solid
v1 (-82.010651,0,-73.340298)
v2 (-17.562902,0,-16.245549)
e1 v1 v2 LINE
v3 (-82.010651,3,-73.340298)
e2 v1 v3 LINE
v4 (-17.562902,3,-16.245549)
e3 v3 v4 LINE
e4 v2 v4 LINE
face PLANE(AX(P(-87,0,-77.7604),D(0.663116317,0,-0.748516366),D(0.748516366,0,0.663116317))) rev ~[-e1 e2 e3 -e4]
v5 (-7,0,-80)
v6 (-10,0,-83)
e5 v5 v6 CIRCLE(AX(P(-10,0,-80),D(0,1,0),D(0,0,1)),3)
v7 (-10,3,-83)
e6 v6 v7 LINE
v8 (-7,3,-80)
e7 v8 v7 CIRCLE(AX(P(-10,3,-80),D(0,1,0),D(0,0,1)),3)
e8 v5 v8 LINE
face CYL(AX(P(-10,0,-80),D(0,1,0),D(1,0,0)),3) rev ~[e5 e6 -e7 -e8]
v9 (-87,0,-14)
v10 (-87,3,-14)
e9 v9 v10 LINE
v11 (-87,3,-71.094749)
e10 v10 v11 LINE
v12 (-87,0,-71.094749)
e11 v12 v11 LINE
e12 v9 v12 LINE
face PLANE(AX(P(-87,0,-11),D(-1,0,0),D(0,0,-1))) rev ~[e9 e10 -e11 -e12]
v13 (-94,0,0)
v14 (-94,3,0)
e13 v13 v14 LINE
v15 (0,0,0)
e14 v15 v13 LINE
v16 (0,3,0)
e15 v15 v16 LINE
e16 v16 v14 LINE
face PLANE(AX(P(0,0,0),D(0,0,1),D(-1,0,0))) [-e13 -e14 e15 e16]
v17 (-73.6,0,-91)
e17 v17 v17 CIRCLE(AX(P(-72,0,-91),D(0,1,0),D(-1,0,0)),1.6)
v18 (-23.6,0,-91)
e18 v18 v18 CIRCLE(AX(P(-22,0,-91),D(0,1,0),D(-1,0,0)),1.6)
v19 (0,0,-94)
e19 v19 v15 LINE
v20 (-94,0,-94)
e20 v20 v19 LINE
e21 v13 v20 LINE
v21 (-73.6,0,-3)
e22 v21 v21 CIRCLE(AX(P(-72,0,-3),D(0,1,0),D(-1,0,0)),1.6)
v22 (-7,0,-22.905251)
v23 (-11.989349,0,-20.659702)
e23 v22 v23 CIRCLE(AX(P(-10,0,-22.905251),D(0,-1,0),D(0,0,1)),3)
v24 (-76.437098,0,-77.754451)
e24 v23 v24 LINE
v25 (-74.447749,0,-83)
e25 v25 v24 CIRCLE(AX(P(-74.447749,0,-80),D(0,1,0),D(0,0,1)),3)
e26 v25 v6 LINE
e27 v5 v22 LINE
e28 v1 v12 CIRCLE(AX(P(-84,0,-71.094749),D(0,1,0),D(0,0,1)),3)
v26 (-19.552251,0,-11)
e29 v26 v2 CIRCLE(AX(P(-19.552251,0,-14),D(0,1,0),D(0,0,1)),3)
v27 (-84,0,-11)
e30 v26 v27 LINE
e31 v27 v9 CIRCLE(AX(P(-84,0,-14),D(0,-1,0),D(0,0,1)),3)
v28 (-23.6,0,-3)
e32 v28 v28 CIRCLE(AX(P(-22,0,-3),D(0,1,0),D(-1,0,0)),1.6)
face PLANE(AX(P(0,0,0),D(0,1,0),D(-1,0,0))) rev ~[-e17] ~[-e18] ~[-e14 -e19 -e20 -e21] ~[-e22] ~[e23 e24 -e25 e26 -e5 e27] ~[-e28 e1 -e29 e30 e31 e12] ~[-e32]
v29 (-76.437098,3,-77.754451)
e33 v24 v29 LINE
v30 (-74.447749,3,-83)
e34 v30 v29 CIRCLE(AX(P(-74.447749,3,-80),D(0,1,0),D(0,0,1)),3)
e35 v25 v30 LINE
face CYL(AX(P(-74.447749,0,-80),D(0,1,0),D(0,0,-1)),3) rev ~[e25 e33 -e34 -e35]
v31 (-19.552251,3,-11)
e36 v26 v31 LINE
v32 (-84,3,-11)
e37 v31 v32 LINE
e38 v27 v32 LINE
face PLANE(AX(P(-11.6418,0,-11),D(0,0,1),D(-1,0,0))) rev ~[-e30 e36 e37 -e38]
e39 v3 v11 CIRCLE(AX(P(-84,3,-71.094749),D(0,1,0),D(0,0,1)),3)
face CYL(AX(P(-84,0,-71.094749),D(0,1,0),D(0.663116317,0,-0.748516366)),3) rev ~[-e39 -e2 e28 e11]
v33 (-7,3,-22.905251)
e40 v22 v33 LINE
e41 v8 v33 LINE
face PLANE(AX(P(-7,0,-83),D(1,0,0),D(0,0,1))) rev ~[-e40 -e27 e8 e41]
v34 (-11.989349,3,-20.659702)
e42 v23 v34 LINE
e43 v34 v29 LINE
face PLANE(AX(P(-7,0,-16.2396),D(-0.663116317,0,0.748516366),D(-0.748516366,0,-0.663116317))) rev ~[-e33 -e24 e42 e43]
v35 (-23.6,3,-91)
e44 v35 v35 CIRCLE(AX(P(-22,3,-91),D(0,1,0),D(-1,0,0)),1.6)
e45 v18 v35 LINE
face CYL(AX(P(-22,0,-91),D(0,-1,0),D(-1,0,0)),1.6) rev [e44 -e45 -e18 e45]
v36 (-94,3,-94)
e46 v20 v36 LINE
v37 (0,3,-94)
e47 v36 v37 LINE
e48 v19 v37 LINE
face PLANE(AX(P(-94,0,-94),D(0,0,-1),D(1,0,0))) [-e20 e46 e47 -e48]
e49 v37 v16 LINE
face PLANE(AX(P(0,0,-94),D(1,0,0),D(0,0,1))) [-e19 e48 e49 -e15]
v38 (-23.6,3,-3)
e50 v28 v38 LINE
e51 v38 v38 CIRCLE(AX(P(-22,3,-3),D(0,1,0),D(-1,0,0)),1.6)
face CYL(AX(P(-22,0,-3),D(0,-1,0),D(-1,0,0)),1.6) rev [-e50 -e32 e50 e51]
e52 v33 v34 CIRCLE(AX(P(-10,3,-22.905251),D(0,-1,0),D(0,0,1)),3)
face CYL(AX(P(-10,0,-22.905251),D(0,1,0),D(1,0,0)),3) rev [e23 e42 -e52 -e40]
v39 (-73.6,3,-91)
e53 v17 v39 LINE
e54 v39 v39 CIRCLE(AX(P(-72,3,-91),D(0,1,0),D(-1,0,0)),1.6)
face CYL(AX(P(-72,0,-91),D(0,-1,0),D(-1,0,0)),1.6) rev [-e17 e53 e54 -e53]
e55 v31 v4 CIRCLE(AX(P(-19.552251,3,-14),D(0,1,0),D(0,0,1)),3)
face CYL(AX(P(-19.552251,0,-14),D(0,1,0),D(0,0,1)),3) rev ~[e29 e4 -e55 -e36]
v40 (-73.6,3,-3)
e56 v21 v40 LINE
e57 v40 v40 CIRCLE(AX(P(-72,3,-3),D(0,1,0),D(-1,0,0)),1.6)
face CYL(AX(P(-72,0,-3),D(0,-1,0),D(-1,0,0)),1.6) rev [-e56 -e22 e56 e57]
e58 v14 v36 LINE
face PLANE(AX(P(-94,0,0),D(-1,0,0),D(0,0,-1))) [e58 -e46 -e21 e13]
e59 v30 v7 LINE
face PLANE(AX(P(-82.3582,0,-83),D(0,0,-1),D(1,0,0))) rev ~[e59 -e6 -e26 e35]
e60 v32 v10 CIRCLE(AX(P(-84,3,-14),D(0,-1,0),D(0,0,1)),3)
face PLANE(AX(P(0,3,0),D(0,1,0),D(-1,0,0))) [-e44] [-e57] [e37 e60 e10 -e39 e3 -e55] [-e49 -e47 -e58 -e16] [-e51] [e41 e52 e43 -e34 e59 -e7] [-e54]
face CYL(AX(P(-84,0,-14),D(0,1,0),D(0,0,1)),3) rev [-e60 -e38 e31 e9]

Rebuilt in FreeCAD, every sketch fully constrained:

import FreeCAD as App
import Part
import Sketcher

V = App.Vector


def edges_at(feature, points):
    """Names of the edges that pass closest to the given points."""
    edges = feature.Shape.Edges
    near = lambda p: min(range(len(edges)), key=lambda i: edges[i].distToShape(Part.Vertex(*p))[0])
    return sorted({f"Edge{near(p) + 1}" for p in points})

doc = App.newDocument("Part")
body = doc.addObject("PartDesign::Body", "Body")

# Sketch on XZ plane
sketch1 = doc.addObject("Sketcher::SketchObject", "Sketch")
body.addObject(sketch1)
sketch1.AttachmentSupport = (doc.XZ_Plane, [""])
sketch1.MapMode = "FlatFace"
sketch1.addGeometry([
    Part.LineSegment(V(-94, 0, 0), V(0, 0, 0)),  # 0
    Part.LineSegment(V(0, 0, 0), V(0, -94, 0)),  # 1
    Part.LineSegment(V(0, -94, 0), V(-94, -94, 0)),  # 2
    Part.LineSegment(V(-94, -94, 0), V(-94, 0, 0)),  # 3
    Part.Circle(V(-22, -91, 0), V(0, 0, 1), 1.6),  # 4
    Part.LineSegment(V(-7, -83, 0), V(-7, -16.2, 0)),  # 5
    Part.LineSegment(V(-7, -16.2, 0), V(-82.4, -83, 0)),  # 6
    Part.LineSegment(V(-82.4, -83, 0), V(-7, -83, 0)),  # 7
    Part.Circle(V(-72, -91, 0), V(0, 0, 1), 1.6),  # 8
    Part.Circle(V(-22, -3, 0), V(0, 0, 1), 1.6),  # 9
    Part.LineSegment(V(-11.6, -11, 0), V(-87, -11, 0)),  # 10
    Part.LineSegment(V(-87, -11, 0), V(-87, -77.8, 0)),  # 11
    Part.LineSegment(V(-87, -77.8, 0), V(-11.6, -11, 0)),  # 12
    Part.Circle(V(-72, -3, 0), V(0, 0, 1), 1.6),  # 13
], False)
sketch1.addConstraint([
    Sketcher.Constraint("Coincident", 0, 2, 1, 1),
    Sketcher.Constraint("Coincident", 1, 2, 2, 1),
    Sketcher.Constraint("Coincident", 2, 2, 3, 1),
    Sketcher.Constraint("Coincident", 3, 2, 0, 1),
    Sketcher.Constraint("Coincident", 5, 2, 6, 1),
    Sketcher.Constraint("Coincident", 6, 2, 7, 1),
    Sketcher.Constraint("Coincident", 7, 2, 5, 1),
    Sketcher.Constraint("Coincident", 10, 2, 11, 1),
    Sketcher.Constraint("Coincident", 11, 2, 12, 1),
    Sketcher.Constraint("Coincident", 12, 2, 10, 1),
    Sketcher.Constraint("Horizontal", 0),
    Sketcher.Constraint("Vertical", 1),
    Sketcher.Constraint("Horizontal", 2),
    Sketcher.Constraint("Vertical", 3),
    Sketcher.Constraint("Vertical", 5),
    Sketcher.Constraint("Horizontal", 7),
    Sketcher.Constraint("Horizontal", 10),
    Sketcher.Constraint("Vertical", 11),
    Sketcher.Constraint("Coincident", 0, 2, -1, 1),
    Sketcher.Constraint("Equal", 4, 8),
    Sketcher.Constraint("Equal", 8, 9),
    Sketcher.Constraint("Equal", 9, 13),
    Sketcher.Constraint("Parallel", 6, 12),
    Sketcher.Constraint("Horizontal", 4, 3, 8, 3),
    Sketcher.Constraint("Horizontal", 9, 3, 13, 3),
    Sketcher.Constraint("Vertical", 4, 3, 9, 3),
    Sketcher.Constraint("Vertical", 8, 3, 13, 3),
    Sketcher.Constraint("Equal", 7, 10),
    Sketcher.Constraint("Equal", 2, 1),
    Sketcher.Constraint("Diameter", 4, 3.2),
    Sketcher.Constraint("DistanceX", 0, 1, 0, 2, 94.0),
    Sketcher.Constraint("DistanceY", 9, 3, -1, 1, 3.0),
    Sketcher.Constraint("DistanceX", 5, 2, -1, 1, 7.0),
    Sketcher.Constraint("DistanceX", 8, 3, 4, 3, 50.0),
    Sketcher.Constraint("DistanceY", 1, 2, 4, 3, 3.0),
    Sketcher.Constraint("DistanceX", 3, 2, 10, 2, 7.0),
    Sketcher.Constraint("DistanceX", 4, 3, -1, 1, 22.0),
    Sketcher.Constraint("DistanceY", 6, 2, -1, 1, 83.0),
    Sketcher.Constraint("DistanceY", 10, 2, -1, 1, 11.0),
    Sketcher.Constraint("DistanceX", 7, 1, 7, 2, 75.3582),
    Sketcher.Constraint("DistanceY", 5, 1, 5, 2, 66.7604),
])
pad1 = doc.addObject("PartDesign::Pad", "Pad")
body.addObject(pad1)
pad1.Profile = sketch1
pad1.Length = 3
pad1.Reversed = True
doc.recompute()

fillet = doc.addObject("PartDesign::Fillet", "Fillet")
body.addObject(fillet)
fillet.Base = (pad1, edges_at(pad1, [
    (-87, 1.5, -77.76),
    (-82.358, 1.5, -83),
    (-7, 1.5, -16.24),
    (-11.642, 1.5, -11),
    (-87, 1.5, -11),
    (-7, 1.5, -83),
]))
fillet.Radius = 3

doc.recompute()
